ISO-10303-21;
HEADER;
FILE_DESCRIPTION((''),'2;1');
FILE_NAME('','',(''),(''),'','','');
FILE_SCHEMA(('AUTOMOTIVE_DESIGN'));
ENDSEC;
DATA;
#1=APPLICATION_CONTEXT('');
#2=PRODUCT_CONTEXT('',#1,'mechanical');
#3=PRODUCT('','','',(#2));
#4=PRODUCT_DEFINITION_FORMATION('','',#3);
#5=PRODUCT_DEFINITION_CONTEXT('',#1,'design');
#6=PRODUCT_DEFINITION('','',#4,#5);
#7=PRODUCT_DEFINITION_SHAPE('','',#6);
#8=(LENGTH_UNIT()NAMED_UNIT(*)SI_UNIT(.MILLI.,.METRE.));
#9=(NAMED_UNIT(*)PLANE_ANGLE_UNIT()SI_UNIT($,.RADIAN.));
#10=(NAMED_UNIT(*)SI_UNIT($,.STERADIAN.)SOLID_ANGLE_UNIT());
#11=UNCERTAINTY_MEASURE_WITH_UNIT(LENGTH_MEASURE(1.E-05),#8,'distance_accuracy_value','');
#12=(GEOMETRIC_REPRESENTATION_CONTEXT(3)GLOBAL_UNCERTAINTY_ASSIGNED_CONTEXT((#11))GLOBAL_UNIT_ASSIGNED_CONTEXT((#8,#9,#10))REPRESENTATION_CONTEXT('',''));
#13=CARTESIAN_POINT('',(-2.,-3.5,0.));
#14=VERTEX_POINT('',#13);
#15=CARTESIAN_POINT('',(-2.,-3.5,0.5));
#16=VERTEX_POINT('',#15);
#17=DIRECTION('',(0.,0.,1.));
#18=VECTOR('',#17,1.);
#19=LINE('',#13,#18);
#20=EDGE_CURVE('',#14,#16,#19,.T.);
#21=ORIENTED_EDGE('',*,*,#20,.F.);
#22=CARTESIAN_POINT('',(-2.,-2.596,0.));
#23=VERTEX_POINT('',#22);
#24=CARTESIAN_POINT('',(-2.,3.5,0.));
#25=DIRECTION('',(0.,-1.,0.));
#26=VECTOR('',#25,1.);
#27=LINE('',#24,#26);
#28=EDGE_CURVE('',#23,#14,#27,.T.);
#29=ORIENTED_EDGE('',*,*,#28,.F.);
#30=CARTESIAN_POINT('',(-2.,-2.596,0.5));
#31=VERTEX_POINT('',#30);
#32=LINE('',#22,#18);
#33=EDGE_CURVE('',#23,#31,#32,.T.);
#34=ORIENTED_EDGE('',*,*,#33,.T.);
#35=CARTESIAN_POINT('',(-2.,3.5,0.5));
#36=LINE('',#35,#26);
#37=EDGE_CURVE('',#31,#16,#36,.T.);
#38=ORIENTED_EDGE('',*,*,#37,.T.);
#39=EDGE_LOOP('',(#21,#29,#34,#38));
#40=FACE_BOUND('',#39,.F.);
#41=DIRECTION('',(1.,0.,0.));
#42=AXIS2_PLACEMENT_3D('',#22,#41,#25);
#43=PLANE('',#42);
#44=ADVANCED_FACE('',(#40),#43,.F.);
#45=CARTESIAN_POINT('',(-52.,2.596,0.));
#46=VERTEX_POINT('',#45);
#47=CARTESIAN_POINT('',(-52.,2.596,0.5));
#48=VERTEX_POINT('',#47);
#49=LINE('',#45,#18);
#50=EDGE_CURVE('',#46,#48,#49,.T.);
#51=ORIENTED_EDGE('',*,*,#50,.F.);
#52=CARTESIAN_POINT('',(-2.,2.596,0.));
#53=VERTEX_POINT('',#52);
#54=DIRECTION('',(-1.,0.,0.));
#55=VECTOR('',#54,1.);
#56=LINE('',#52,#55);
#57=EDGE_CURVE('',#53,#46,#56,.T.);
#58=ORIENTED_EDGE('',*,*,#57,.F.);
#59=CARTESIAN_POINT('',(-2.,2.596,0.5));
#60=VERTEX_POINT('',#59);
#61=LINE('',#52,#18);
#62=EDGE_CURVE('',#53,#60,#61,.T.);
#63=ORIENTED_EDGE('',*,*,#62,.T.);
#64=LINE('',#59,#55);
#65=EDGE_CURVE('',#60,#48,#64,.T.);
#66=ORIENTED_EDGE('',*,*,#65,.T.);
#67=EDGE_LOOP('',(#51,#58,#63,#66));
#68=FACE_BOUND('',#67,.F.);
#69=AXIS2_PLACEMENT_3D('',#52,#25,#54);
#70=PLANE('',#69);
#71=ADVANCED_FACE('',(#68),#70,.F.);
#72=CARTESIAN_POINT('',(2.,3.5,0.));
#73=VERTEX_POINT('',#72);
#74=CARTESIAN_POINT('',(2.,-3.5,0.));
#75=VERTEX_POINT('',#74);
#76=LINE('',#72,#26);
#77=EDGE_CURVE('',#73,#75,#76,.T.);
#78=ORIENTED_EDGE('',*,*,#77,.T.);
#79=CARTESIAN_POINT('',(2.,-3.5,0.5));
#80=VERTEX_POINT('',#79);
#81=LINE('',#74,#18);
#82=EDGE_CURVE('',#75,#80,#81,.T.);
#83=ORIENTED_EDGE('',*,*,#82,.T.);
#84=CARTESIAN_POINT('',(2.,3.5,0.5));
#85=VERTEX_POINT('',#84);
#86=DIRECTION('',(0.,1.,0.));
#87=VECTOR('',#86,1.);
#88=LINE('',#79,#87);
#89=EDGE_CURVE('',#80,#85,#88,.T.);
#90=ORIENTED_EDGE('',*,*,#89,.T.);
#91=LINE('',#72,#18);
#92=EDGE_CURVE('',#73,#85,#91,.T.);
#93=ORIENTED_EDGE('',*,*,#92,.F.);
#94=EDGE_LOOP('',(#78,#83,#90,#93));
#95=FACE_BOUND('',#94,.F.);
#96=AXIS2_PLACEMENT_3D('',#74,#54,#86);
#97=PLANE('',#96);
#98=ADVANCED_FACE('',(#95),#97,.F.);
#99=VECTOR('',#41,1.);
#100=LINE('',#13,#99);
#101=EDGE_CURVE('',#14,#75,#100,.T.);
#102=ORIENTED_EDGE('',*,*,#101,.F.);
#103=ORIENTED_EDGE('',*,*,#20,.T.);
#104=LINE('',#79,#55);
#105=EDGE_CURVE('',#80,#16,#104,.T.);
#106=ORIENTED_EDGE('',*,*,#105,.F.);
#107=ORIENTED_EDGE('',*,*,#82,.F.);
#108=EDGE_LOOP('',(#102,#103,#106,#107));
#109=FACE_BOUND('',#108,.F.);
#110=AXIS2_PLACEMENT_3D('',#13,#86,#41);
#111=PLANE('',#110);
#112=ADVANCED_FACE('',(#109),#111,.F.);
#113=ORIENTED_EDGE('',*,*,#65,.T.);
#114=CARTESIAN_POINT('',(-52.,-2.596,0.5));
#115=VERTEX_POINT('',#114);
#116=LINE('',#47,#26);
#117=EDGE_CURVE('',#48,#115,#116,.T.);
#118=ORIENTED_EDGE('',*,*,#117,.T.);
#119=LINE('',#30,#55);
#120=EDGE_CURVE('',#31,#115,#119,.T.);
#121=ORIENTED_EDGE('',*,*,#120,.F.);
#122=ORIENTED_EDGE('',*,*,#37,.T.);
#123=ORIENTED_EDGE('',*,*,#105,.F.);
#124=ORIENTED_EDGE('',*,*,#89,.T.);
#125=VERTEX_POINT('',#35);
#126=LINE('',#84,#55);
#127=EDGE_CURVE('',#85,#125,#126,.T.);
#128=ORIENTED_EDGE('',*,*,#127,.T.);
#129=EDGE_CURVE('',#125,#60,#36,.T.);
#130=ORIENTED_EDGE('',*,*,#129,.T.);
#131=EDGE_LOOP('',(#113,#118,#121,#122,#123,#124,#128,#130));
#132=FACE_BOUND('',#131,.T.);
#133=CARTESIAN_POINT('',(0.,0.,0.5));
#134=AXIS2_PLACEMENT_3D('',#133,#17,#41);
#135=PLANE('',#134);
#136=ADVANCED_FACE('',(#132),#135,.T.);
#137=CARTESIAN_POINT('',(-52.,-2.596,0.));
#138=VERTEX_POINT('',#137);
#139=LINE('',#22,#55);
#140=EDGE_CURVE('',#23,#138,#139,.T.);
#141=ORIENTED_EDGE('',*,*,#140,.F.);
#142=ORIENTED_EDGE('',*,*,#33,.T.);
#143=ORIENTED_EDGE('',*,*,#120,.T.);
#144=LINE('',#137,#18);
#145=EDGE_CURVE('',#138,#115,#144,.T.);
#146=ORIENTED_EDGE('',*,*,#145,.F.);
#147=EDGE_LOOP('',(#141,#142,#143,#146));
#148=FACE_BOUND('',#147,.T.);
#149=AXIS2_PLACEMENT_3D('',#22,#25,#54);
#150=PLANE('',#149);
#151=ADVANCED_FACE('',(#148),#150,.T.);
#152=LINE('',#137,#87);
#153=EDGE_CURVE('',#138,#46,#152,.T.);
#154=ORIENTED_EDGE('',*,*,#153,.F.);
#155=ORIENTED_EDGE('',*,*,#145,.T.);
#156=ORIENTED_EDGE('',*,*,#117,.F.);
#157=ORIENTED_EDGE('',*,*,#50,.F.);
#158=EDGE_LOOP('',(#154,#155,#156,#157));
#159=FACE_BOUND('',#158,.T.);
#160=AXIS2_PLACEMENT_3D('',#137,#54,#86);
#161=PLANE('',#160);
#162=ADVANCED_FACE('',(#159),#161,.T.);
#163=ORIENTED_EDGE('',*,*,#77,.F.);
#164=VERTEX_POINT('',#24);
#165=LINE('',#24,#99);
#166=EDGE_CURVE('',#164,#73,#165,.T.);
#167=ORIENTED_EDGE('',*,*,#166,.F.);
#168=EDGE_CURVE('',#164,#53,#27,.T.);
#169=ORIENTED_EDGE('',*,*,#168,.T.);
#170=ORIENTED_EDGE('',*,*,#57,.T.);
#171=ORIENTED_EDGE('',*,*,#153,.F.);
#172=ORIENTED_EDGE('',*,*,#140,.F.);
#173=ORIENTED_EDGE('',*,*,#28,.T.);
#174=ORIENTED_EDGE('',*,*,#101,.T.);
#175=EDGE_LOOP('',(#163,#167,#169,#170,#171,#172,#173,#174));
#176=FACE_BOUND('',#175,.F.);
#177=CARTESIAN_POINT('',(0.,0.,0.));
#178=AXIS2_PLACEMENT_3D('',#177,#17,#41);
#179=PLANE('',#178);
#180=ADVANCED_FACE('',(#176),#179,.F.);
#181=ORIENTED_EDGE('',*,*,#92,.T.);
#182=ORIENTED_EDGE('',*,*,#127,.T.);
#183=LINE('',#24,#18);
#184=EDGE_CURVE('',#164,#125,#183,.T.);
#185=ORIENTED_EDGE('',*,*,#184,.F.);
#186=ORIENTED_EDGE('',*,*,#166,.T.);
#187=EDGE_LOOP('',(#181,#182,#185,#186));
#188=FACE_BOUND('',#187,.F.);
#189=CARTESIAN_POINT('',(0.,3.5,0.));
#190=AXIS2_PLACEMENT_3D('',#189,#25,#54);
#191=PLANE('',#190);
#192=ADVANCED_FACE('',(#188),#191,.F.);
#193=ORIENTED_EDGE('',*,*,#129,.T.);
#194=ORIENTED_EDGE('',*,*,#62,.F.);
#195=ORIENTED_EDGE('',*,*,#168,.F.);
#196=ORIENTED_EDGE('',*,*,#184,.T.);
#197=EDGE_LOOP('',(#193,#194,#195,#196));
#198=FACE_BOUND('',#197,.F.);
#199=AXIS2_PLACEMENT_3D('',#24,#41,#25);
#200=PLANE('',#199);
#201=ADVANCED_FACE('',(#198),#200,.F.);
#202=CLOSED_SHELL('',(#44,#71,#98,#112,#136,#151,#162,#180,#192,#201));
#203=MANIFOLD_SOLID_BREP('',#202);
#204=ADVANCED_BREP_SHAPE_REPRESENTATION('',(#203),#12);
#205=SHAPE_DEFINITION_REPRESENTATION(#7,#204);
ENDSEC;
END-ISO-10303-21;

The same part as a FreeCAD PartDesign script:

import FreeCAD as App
import Part
import Sketcher

V = App.Vector
Q = App.Units.Quantity

doc = App.newDocument("Part")
params = doc.addObject("Spreadsheet::Sheet", "Params")
for row, (alias, value) in enumerate([
    ("sketch1_width", "4 mm"),
    ("sketch1_width2", "50 mm"),
    ("sketch1_height", "7 mm"),
    ("pad1_length", "0.5 mm"),
], start=1):
    params.set(f"A{row}", alias)
    params.set(f"B{row}", "=" + value)
    params.setAlias(f"B{row}", alias)

body = doc.addObject("PartDesign::Body", "Body")

# Sketch on XY plane
sketch1 = doc.addObject("Sketcher::SketchObject", "Sketch")
body.addObject(sketch1)
sketch1.AttachmentSupport = (doc.XY_Plane, [""])
sketch1.MapMode = "FlatFace"
sketch1.addGeometry([
    Part.LineSegment(V(-2, -2.596, 0), V(-2, -3.5, 0)),  # 0
    Part.LineSegment(V(-2, -3.5, 0), V(2, -3.5, 0)),  # 1
    Part.LineSegment(V(2, -3.5, 0), V(2, 3.5, 0)),  # 2
    Part.LineSegment(V(2, 3.5, 0), V(-2, 3.5, 0)),  # 3
    Part.LineSegment(V(-2, 3.5, 0), V(-2, 2.596, 0)),  # 4
    Part.LineSegment(V(-2, 2.596, 0), V(-52, 2.596, 0)),  # 5
    Part.LineSegment(V(-52, 2.596, 0), V(-52, -2.596, 0)),  # 6
    Part.LineSegment(V(-52, -2.596, 0), V(-2, -2.596, 0)),  # 7
], False)
sketch1.addConstraint([
    Sketcher.Constraint("Coincident", 0, 2, 1, 1),
    Sketcher.Constraint("Coincident", 1, 2, 2, 1),
    Sketcher.Constraint("Coincident", 2, 2, 3, 1),
    Sketcher.Constraint("Coincident", 3, 2, 4, 1),
    Sketcher.Constraint("Coincident", 4, 2, 5, 1),
    Sketcher.Constraint("Coincident", 5, 2, 6, 1),
    Sketcher.Constraint("Coincident", 6, 2, 7, 1),
    Sketcher.Constraint("Coincident", 7, 2, 0, 1),
    Sketcher.Constraint("Vertical", 0),
    Sketcher.Constraint("Horizontal", 1),
    Sketcher.Constraint("Vertical", 2),
    Sketcher.Constraint("Horizontal", 3),
    Sketcher.Constraint("Vertical", 4),
    Sketcher.Constraint("Horizontal", 5),
    Sketcher.Constraint("Vertical", 6),
    Sketcher.Constraint("Horizontal", 7),
    Sketcher.Constraint("Symmetric", 0, 2, 2, 2, -1, 1),
    Sketcher.Constraint("Symmetric", 4, 2, 7, 2, -1),
    Sketcher.Constraint("DistanceX", 1, 1, 1, 2, Q("4 mm")),
    Sketcher.Constraint("DistanceX", 5, 2, 5, 1, Q("50 mm")),
    Sketcher.Constraint("DistanceY", 2, 1, 2, 2, Q("7 mm")),
    Sketcher.Constraint("DistanceY", 0, 2, 0, 1, Q("0.904 mm")),
])
sketch1.setExpression("Constraints[18]", "Params.sketch1_width")
sketch1.setExpression("Constraints[19]", "Params.sketch1_width2")
sketch1.setExpression("Constraints[20]", "Params.sketch1_height")
pad1 = doc.addObject("PartDesign::Pad", "Pad")
body.addObject(pad1)
pad1.Profile = sketch1
pad1.setExpression("Length", "Params.pad1_length")

doc.recompute()
